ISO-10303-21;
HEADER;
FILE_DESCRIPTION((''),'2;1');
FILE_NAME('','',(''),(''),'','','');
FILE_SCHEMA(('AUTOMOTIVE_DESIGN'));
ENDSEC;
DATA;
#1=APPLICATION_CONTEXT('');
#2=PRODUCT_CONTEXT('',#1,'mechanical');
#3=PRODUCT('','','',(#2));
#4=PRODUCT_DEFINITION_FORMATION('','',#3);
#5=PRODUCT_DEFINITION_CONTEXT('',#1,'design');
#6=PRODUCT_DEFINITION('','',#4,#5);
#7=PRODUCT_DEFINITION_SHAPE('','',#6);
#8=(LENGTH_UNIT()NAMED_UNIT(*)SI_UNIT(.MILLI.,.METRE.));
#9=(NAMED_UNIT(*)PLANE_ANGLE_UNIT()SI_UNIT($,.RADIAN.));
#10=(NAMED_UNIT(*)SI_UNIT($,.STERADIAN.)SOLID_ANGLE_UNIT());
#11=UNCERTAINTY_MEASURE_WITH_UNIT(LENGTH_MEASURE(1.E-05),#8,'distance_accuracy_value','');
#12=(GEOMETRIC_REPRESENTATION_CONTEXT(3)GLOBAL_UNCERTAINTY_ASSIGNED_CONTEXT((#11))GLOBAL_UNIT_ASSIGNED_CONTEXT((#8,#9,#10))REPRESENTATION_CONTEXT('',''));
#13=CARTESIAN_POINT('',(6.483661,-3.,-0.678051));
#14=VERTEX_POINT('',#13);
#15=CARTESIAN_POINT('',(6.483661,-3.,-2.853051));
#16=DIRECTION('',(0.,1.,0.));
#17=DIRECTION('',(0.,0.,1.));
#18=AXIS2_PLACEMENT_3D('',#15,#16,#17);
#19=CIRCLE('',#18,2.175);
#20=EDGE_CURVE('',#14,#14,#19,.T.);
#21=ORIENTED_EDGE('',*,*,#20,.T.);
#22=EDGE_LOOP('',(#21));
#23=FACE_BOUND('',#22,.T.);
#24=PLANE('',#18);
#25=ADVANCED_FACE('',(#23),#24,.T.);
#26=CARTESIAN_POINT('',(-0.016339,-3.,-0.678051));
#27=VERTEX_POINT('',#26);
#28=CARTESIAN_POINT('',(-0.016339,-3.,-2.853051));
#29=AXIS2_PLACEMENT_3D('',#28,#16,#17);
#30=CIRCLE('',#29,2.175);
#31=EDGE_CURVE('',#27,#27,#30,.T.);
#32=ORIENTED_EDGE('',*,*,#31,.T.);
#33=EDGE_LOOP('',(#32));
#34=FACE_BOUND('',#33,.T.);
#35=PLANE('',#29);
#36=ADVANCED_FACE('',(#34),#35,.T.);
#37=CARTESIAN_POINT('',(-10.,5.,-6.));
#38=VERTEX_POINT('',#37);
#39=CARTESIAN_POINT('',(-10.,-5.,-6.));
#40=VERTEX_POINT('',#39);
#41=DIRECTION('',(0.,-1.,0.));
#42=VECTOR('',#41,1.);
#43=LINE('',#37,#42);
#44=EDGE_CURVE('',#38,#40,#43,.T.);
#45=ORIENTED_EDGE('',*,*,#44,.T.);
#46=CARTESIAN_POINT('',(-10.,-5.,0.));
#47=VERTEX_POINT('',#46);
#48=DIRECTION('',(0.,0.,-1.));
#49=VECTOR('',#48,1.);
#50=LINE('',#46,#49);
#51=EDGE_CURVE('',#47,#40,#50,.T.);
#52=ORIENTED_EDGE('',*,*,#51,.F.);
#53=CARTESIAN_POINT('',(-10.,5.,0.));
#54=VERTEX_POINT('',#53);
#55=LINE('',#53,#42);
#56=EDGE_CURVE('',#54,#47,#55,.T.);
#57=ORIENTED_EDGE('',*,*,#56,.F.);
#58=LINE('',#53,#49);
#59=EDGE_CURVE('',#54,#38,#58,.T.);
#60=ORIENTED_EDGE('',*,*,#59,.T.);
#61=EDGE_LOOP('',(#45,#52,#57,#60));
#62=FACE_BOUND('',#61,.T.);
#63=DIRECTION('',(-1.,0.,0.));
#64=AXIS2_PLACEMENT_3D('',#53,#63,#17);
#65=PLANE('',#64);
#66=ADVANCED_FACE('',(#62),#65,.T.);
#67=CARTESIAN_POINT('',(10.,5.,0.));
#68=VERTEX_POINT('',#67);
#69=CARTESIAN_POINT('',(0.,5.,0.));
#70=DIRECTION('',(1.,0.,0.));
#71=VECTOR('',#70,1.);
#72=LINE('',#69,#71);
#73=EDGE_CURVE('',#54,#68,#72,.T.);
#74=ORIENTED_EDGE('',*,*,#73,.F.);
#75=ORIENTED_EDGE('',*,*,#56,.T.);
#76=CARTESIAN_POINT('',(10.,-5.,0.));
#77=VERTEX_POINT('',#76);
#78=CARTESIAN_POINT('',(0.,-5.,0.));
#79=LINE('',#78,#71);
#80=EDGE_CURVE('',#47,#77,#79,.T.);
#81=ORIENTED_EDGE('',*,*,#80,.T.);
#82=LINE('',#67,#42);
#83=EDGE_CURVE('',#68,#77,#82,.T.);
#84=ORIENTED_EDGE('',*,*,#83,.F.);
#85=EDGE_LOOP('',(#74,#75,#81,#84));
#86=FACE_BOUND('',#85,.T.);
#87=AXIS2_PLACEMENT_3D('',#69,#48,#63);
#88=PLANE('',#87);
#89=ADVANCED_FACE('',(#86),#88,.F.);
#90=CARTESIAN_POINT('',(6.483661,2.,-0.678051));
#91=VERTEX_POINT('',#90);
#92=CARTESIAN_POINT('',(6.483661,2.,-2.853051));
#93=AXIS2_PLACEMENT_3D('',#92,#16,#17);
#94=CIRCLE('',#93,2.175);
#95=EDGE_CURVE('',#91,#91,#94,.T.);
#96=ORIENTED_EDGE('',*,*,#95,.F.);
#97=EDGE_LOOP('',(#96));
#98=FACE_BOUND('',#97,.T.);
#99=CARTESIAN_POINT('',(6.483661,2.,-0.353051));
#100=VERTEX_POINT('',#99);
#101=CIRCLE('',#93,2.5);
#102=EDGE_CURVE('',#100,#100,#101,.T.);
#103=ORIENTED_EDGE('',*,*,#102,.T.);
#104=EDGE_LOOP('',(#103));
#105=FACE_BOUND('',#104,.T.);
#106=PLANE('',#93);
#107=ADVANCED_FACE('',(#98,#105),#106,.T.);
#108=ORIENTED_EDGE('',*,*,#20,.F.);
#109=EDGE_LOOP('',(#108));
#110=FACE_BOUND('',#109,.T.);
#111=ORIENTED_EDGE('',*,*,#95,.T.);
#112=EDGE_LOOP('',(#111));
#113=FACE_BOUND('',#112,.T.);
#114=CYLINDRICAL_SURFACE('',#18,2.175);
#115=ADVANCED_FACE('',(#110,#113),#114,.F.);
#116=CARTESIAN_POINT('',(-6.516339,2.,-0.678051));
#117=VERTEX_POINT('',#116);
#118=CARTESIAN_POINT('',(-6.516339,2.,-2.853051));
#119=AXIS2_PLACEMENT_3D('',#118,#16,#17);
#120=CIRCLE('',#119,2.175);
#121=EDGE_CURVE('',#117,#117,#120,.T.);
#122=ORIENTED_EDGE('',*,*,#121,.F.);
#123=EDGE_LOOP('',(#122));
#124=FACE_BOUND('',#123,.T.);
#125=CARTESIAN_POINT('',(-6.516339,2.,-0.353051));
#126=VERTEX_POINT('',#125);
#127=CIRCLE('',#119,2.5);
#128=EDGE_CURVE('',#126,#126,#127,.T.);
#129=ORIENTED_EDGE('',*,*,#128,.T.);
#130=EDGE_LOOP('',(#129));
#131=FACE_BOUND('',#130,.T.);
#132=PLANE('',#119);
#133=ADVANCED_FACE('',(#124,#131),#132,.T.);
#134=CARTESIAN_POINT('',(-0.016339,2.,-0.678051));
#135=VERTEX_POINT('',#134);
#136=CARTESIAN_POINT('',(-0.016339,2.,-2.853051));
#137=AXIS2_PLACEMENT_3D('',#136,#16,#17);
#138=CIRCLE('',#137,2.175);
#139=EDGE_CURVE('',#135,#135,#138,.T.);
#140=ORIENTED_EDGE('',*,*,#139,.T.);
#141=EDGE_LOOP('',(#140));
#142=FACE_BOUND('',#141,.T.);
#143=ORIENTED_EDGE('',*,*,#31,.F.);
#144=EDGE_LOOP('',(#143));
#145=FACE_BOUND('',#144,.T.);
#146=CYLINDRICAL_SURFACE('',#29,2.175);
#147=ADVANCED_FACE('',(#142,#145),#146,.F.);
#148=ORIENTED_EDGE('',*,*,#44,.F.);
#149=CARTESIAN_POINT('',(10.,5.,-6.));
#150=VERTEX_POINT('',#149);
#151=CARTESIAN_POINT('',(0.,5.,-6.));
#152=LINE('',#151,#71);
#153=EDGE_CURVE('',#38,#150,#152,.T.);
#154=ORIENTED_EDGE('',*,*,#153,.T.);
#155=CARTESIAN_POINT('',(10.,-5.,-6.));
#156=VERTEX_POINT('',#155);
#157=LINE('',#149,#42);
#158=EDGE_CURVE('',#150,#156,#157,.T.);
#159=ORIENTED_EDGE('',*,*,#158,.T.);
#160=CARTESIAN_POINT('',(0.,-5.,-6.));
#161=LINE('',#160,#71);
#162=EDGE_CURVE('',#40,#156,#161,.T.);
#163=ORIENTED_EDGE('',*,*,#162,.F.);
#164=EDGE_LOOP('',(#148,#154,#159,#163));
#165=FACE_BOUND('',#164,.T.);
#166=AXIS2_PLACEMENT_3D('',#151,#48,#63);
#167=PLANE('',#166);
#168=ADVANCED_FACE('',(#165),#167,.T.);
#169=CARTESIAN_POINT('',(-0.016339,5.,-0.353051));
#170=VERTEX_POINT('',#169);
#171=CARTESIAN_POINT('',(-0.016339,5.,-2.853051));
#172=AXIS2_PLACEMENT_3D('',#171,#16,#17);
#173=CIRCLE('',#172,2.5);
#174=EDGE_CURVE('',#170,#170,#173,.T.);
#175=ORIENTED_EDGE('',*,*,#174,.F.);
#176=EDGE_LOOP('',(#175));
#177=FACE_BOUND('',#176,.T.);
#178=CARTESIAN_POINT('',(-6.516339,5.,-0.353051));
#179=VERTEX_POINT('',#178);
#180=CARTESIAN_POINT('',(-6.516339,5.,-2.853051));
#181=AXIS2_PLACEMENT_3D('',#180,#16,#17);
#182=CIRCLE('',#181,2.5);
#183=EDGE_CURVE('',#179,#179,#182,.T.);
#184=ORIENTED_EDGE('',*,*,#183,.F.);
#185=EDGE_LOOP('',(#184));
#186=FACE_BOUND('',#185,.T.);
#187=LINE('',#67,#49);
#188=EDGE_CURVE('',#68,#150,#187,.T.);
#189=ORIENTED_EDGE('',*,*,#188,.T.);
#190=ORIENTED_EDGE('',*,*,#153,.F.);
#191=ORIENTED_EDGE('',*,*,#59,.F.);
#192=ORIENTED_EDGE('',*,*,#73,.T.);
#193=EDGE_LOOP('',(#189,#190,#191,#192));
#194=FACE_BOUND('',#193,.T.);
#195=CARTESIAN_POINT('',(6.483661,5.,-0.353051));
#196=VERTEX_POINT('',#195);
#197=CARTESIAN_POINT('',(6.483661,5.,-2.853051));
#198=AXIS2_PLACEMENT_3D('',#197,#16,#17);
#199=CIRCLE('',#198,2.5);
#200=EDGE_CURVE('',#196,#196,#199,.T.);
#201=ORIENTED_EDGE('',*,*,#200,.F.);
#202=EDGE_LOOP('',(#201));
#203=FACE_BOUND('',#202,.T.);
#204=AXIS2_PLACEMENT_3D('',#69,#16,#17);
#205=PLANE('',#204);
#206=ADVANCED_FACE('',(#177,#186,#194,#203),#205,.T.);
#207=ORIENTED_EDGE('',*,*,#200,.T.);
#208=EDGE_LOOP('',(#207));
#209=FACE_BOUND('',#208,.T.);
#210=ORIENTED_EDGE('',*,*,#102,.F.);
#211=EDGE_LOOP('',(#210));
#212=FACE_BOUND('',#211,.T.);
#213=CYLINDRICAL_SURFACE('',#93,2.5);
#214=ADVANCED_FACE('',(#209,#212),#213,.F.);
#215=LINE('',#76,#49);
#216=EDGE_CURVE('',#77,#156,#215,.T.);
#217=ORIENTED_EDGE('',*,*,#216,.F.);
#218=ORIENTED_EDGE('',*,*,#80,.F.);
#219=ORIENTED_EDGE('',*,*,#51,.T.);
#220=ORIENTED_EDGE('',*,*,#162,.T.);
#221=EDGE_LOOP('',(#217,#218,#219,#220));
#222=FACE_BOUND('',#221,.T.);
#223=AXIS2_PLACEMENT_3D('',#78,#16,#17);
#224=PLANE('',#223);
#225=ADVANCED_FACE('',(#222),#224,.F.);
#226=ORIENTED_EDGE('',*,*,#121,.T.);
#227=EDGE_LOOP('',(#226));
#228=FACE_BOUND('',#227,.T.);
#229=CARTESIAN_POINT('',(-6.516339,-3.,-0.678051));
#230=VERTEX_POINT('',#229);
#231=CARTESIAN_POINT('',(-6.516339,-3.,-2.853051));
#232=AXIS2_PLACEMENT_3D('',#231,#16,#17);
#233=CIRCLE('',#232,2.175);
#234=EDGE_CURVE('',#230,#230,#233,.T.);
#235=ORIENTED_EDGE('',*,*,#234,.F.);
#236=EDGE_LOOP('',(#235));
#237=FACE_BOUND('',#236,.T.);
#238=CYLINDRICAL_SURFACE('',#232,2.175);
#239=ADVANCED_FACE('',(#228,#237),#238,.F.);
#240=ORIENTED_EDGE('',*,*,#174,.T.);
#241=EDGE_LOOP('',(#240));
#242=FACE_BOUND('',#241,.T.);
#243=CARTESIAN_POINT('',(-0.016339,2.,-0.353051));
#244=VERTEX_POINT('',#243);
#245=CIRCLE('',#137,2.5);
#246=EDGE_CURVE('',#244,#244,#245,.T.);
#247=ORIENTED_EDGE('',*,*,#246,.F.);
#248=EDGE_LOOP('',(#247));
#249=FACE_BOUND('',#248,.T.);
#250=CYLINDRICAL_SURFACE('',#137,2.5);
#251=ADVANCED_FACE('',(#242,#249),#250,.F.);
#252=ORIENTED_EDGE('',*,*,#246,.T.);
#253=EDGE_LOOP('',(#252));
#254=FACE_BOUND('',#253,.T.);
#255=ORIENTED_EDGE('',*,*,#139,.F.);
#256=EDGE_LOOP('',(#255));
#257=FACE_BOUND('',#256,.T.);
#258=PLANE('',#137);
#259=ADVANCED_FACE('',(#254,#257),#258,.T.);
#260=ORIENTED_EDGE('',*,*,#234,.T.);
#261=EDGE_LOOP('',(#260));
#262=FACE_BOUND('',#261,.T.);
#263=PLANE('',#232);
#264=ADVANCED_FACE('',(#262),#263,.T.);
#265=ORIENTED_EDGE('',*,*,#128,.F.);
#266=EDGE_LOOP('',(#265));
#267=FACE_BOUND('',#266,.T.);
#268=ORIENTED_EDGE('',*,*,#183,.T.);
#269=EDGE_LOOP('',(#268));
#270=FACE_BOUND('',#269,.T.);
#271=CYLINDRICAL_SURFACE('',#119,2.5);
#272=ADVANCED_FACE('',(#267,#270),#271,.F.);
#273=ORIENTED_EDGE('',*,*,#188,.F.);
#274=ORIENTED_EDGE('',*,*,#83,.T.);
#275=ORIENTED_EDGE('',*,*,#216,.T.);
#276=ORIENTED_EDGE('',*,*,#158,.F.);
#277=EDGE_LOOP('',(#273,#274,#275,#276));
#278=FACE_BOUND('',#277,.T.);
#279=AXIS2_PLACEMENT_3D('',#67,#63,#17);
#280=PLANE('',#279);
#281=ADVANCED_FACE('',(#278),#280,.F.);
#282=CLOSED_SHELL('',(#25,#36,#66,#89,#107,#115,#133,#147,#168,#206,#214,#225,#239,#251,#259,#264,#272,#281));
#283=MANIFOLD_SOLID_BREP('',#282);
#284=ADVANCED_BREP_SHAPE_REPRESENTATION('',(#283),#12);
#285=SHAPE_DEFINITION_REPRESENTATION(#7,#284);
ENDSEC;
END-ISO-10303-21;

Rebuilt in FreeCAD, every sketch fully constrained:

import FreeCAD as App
import Part
import Sketcher

V = App.Vector
Q = App.Units.Quantity

doc = App.newDocument("Part")
params = doc.addObject("Spreadsheet::Sheet", "Params")
for row, (alias, value) in enumerate([
    ("sketch1_width", "20 mm"),
    ("sketch1_height", "6 mm"),
    ("pad1_length", "10 mm"),
    ("sketch2_diameter", "5 mm"),
    ("pocket1_length", "3 mm"),
    ("sketch3_diameter", "4.35 mm"),
    ("pocket2_length", "5 mm"),
    ("linearpattern_pitch", "6.5 mm"),
], start=1):
    params.set(f"A{row}", alias)
    params.set(f"B{row}", "=" + value)
    params.setAlias(f"B{row}", alias)

body = doc.addObject("PartDesign::Body", "Body")

sketch1 = body.newObject("Sketcher::SketchObject", "Sketch")
sketch1.AttachmentSupport = (doc.getObject("XZ_Plane"), [""])
sketch1.MapMode = "FlatFace"
sketch1.addGeometry([
    Part.LineSegment(V(-10, -6, 0), V(-10, 0, 0)),
    Part.LineSegment(V(-10, 0, 0), V(10, 0, 0)),
    Part.LineSegment(V(10, 0, 0), V(10, -6, 0)),
    Part.LineSegment(V(10, -6, 0), V(-10, -6, 0)),
], False)
sketch1.addConstraint([
    Sketcher.Constraint("Coincident", 0, 2, 1, 1),
    Sketcher.Constraint("Coincident", 1, 2, 2, 1),
    Sketcher.Constraint("Coincident", 2, 2, 3, 1),
    Sketcher.Constraint("Coincident", 3, 2, 0, 1),
    Sketcher.Constraint("Vertical", 0),
    Sketcher.Constraint("Horizontal", 1),
    Sketcher.Constraint("Vertical", 2),
    Sketcher.Constraint("Horizontal", 3),
    Sketcher.Constraint("Symmetric", 0, 2, 1, 2, -1, 1),
    Sketcher.Constraint("DistanceX", 1, 1, 1, 2, Q("20 mm")),
    Sketcher.Constraint("DistanceY", 0, 1, 0, 2, Q("6 mm")),
])
sketch1.setExpression("Constraints[9]", "Params.sketch1_width")
sketch1.setExpression("Constraints[10]", "Params.sketch1_height")
pad1 = body.newObject("PartDesign::Pad", "Pad")
pad1.Profile = sketch1
pad1.setExpression("Length", "Params.pad1_length")
pad1.Midplane = True

sketch2 = body.newObject("Sketcher::SketchObject", "Sketch001")
sketch2.AttachmentSupport = (doc.getObject("XZ_Plane"), [""])
sketch2.MapMode = "FlatFace"
sketch2.AttachmentOffset = App.Placement(V(0, 0, -5), App.Rotation())
sketch2.addGeometry(Part.Circle(V(-6.5, -2.9, 0), V(0, 0, 1), 2.5), False)
sketch2.addConstraint([
    Sketcher.Constraint("Diameter", 0, Q("5 mm")),
    Sketcher.Constraint("DistanceX", 0, 3, -1, 1, Q("6.516339 mm")),
    Sketcher.Constraint("DistanceY", 0, 3, -1, 1, Q("2.853051 mm")),
])
sketch2.setExpression("Constraints[0]", "Params.sketch2_diameter")
pocket1 = body.newObject("PartDesign::Pocket", "Pocket")
pocket1.Profile = sketch2
pocket1.setExpression("Length", "Params.pocket1_length")
pocket1.Reversed = True

sketch3 = body.newObject("Sketcher::SketchObject", "Sketch002")
sketch3.AttachmentSupport = (doc.getObject("XZ_Plane"), [""])
sketch3.MapMode = "FlatFace"
sketch3.AttachmentOffset = App.Placement(V(0, 0, -2), App.Rotation())
sketch3.addGeometry(Part.Circle(V(-6.5, -2.9, 0), V(0, 0, 1), 2.2), False)
sketch3.addConstraint([
    Sketcher.Constraint("Diameter", 0, Q("4.35 mm")),
    Sketcher.Constraint("DistanceX", 0, 3, -1, 1, Q("6.516339 mm")),
    Sketcher.Constraint("DistanceY", 0, 3, -1, 1, Q("2.853051 mm")),
])
sketch3.setExpression("Constraints[0]", "Params.sketch3_diameter")
pocket2 = body.newObject("PartDesign::Pocket", "Pocket001")
pocket2.Profile = sketch3
pocket2.setExpression("Length", "Params.pocket2_length")
pocket2.Reversed = True
doc.recompute()

linearpattern = body.newObject("PartDesign::LinearPattern", "LinearPattern")
linearpattern.Originals = [pocket1, pocket2]
linearpattern.Direction = (doc.getObject("X_Axis"), [""])
linearpattern.Mode = "offset"
linearpattern.setExpression("Offset", "Params.linearpattern_pitch")
linearpattern.Occurrences = 3
body.Tip = linearpattern

doc.recompute()
